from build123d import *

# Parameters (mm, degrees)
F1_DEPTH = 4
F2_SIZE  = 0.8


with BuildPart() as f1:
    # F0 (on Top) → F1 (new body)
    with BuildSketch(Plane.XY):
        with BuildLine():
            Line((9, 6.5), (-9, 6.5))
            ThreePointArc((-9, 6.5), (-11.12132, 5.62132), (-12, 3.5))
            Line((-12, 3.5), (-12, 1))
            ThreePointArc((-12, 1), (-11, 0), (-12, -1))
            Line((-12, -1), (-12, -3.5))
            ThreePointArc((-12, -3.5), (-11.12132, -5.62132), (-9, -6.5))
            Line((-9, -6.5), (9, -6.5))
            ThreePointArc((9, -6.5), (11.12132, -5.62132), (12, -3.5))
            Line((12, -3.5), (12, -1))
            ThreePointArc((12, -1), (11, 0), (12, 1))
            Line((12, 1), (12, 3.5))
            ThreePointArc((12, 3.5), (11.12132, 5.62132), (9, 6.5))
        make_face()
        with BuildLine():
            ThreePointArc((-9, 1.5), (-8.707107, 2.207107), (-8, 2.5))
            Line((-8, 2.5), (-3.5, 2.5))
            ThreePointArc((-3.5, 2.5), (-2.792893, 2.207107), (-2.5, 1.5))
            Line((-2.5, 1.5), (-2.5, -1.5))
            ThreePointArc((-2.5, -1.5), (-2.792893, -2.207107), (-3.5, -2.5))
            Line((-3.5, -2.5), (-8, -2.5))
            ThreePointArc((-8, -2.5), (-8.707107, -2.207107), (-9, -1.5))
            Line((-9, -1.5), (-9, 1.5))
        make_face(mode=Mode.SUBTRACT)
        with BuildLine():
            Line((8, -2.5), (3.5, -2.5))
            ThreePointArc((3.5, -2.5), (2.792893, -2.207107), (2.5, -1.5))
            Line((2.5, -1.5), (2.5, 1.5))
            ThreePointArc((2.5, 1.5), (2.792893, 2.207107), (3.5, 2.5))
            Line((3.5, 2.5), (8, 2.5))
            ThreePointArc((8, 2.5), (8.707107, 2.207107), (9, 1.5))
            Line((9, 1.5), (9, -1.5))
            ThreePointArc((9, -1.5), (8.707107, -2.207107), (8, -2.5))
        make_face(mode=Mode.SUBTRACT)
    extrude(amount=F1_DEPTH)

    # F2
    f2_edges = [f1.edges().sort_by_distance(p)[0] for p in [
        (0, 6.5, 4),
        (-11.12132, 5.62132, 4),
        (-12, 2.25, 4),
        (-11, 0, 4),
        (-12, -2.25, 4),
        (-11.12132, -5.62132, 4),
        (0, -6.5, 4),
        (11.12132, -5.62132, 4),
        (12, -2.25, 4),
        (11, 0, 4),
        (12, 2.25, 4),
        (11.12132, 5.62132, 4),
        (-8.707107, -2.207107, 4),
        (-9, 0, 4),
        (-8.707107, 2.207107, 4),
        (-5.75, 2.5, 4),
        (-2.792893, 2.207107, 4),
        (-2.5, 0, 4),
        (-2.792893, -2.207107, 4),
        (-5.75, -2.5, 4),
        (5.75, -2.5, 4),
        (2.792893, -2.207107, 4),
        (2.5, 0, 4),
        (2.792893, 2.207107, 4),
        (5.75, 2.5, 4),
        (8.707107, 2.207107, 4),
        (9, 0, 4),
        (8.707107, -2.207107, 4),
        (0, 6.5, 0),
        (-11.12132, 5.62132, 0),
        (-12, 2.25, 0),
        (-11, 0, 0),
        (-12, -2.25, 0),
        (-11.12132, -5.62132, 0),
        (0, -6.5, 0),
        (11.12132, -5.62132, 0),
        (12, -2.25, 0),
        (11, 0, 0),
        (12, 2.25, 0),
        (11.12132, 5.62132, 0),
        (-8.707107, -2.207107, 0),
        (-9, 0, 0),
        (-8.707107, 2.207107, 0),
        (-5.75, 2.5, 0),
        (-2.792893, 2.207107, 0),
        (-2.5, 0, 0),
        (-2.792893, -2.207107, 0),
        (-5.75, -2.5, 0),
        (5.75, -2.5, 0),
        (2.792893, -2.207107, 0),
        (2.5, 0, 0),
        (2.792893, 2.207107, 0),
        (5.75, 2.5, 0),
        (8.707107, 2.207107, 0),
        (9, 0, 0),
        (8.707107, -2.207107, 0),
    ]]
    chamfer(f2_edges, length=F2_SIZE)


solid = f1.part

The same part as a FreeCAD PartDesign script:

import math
import FreeCAD as App
import Part
import Sketcher
from FreeCAD import Vector
Q = App.Units.Quantity


def edges_at(feature, points):
    """Names of the edges that pass closest to the given points."""
    edges = feature.Shape.Edges
    near = lambda p: min(range(len(edges)), key=lambda i: edges[i].distToShape(Part.Vertex(*p))[0])
    return sorted({f"Edge{near(p) + 1}" for p in points})

doc = App.newDocument("Part")
body = doc.addObject("PartDesign::Body", "Body")

sketch1 = body.newObject("Sketcher::SketchObject", "Sketch")
sketch1.AttachmentSupport = (doc.getObject("XY_Plane"), [""])
sketch1.MapMode = "FlatFace"
sketch1.addGeometry(Part.LineSegment(Vector(9, 6.5, 0), Vector(-9, 6.5, 0)), False)
sketch1.addGeometry(Part.ArcOfCircle(Part.Circle(Vector(-9, 3.5, 0), Vector(0, 0, 1), 3), math.radians(90), math.radians(180)), False)
sketch1.addGeometry(Part.LineSegment(Vector(-12, 3.5, 0), Vector(-12, 1, 0)), False)
sketch1.addGeometry(Part.ArcOfCircle(Part.Circle(Vector(-12, 0, 0), Vector(0, 0, 1), 1), math.radians(-90), math.radians(90)), False)
sketch1.addGeometry(Part.LineSegment(Vector(-12, -1, 0), Vector(-12, -3.5, 0)), False)
sketch1.addGeometry(Part.ArcOfCircle(Part.Circle(Vector(-9, -3.5, 0), Vector(0, 0, 1), 3), math.radians(-180), math.radians(-90)), False)
sketch1.addGeometry(Part.LineSegment(Vector(-9, -6.5, 0), Vector(9, -6.5, 0)), False)
sketch1.addGeometry(Part.ArcOfCircle(Part.Circle(Vector(9, -3.5, 0), Vector(0, 0, 1), 3), math.radians(-90), math.radians(0)), False)
sketch1.addGeometry(Part.LineSegment(Vector(12, -3.5, 0), Vector(12, -1, 0)), False)
sketch1.addGeometry(Part.ArcOfCircle(Part.Circle(Vector(12, 0, 0), Vector(0, 0, 1), 1), math.radians(90), math.radians(270)), False)
sketch1.addGeometry(Part.LineSegment(Vector(12, 1, 0), Vector(12, 3.5, 0)), False)
sketch1.addGeometry(Part.ArcOfCircle(Part.Circle(Vector(9, 3.5, 0), Vector(0, 0, 1), 3), math.radians(0), math.radians(90)), False)
sketch1.addGeometry(Part.LineSegment(Vector(-9, -1.5, 0), Vector(-9, 1.5, 0)), False)
sketch1.addGeometry(Part.ArcOfCircle(Part.Circle(Vector(-8, 1.5, 0), Vector(0, 0, 1), 1), math.radians(90), math.radians(180)), False)
sketch1.addGeometry(Part.LineSegment(Vector(-8, 2.5, 0), Vector(-3.5, 2.5, 0)), False)
sketch1.addGeometry(Part.ArcOfCircle(Part.Circle(Vector(-3.5, 1.5, 0), Vector(0, 0, 1), 1), math.radians(0), math.radians(90)), False)
sketch1.addGeometry(Part.LineSegment(Vector(-2.5, 1.5, 0), Vector(-2.5, -1.5, 0)), False)
sketch1.addGeometry(Part.ArcOfCircle(Part.Circle(Vector(-3.5, -1.5, 0), Vector(0, 0, 1), 1), math.radians(-90), math.radians(0)), False)
sketch1.addGeometry(Part.LineSegment(Vector(-3.5, -2.5, 0), Vector(-8, -2.5, 0)), False)
sketch1.addGeometry(Part.ArcOfCircle(Part.Circle(Vector(-8, -1.5, 0), Vector(0, 0, 1), 1), math.radians(180), math.radians(270)), False)
sketch1.addGeometry(Part.ArcOfCircle(Part.Circle(Vector(8, -1.5, 0), Vector(0, 0, 1), 1), math.radians(-90), math.radians(0)), False)
sketch1.addGeometry(Part.LineSegment(Vector(8, -2.5, 0), Vector(3.5, -2.5, 0)), False)
sketch1.addGeometry(Part.ArcOfCircle(Part.Circle(Vector(3.5, -1.5, 0), Vector(0, 0, 1), 1), math.radians(180), math.radians(270)), False)
sketch1.addGeometry(Part.LineSegment(Vector(2.5, -1.5, 0), Vector(2.5, 1.5, 0)), False)
sketch1.addGeometry(Part.ArcOfCircle(Part.Circle(Vector(3.5, 1.5, 0), Vector(0, 0, 1), 1), math.radians(90), math.radians(180)), False)
sketch1.addGeometry(Part.LineSegment(Vector(3.5, 2.5, 0), Vector(8, 2.5, 0)), False)
sketch1.addGeometry(Part.ArcOfCircle(Part.Circle(Vector(8, 1.5, 0), Vector(0, 0, 1), 1), math.radians(0), math.radians(90)), False)
sketch1.addGeometry(Part.LineSegment(Vector(9, 1.5, 0), Vector(9, -1.5, 0)), False)
sketch1.addConstraint(Sketcher.Constraint("Tangent", 0, 2, 1, 1))
sketch1.addConstraint(Sketcher.Constraint("Tangent", 1, 2, 2, 1))
sketch1.addConstraint(Sketcher.Constraint("Coincident", 2, 2, 3, 2))
sketch1.addConstraint(Sketcher.Constraint("Coincident", 3, 1, 4, 1))
sketch1.addConstraint(Sketcher.Constraint("Tangent", 4, 2, 5, 1))
sketch1.addConstraint(Sketcher.Constraint("Tangent", 5, 2, 6, 1))
sketch1.addConstraint(Sketcher.Constraint("Tangent", 6, 2, 7, 1))
sketch1.addConstraint(Sketcher.Constraint("Tangent", 7, 2, 8, 1))
sketch1.addConstraint(Sketcher.Constraint("Coincident", 8, 2, 9, 2))
sketch1.addConstraint(Sketcher.Constraint("Coincident", 9, 1, 10, 1))
sketch1.addConstraint(Sketcher.Constraint("Tangent", 10, 2, 11, 1))
sketch1.addConstraint(Sketcher.Constraint("Tangent", 11, 2, 0, 1))
sketch1.addConstraint(Sketcher.Constraint("Tangent", 12, 2, 13, 2))
sketch1.addConstraint(Sketcher.Constraint("Tangent", 13, 1, 14, 1))
sketch1.addConstraint(Sketcher.Constraint("Tangent", 14, 2, 15, 2))
sketch1.addConstraint(Sketcher.Constraint("Tangent", 15, 1, 16, 1))
sketch1.addConstraint(Sketcher.Constraint("Tangent", 16, 2, 17, 2))
sketch1.addConstraint(Sketcher.Constraint("Tangent", 17, 1, 18, 1))
sketch1.addConstraint(Sketcher.Constraint("Tangent", 18, 2, 19, 2))
sketch1.addConstraint(Sketcher.Constraint("Tangent", 19, 1, 12, 1))
sketch1.addConstraint(Sketcher.Constraint("Tangent", 20, 1, 21, 1))
sketch1.addConstraint(Sketcher.Constraint("Tangent", 21, 2, 22, 2))
sketch1.addConstraint(Sketcher.Constraint("Tangent", 22, 1, 23, 1))
sketch1.addConstraint(Sketcher.Constraint("Tangent", 23, 2, 24, 2))
sketch1.addConstraint(Sketcher.Constraint("Tangent", 24, 1, 25, 1))
sketch1.addConstraint(Sketcher.Constraint("Tangent", 25, 2, 26, 2))
sketch1.addConstraint(Sketcher.Constraint("Tangent", 26, 1, 27, 1))
sketch1.addConstraint(Sketcher.Constraint("Tangent", 27, 2, 20, 2))
sketch1.addConstraint(Sketcher.Constraint("Horizontal", 0))
sketch1.addConstraint(Sketcher.Constraint("Vertical", 2))
sketch1.addConstraint(Sketcher.Constraint("Vertical", 4))
sketch1.addConstraint(Sketcher.Constraint("Horizontal", 6))
sketch1.addConstraint(Sketcher.Constraint("Vertical", 8))
sketch1.addConstraint(Sketcher.Constraint("Vertical", 10))
sketch1.addConstraint(Sketcher.Constraint("Vertical", 12))
sketch1.addConstraint(Sketcher.Constraint("Horizontal", 14))
sketch1.addConstraint(Sketcher.Constraint("Vertical", 16))
sketch1.addConstraint(Sketcher.Constraint("Horizontal", 18))
sketch1.addConstraint(Sketcher.Constraint("Horizontal", 21))
sketch1.addConstraint(Sketcher.Constraint("Vertical", 23))
sketch1.addConstraint(Sketcher.Constraint("Horizontal", 25))
sketch1.addConstraint(Sketcher.Constraint("Vertical", 27))
sketch1.addConstraint(Sketcher.Constraint("Equal", 1, 5))
sketch1.addConstraint(Sketcher.Constraint("Equal", 5, 7))
sketch1.addConstraint(Sketcher.Constraint("Equal", 3, 9))
sketch1.addConstraint(Sketcher.Constraint("Equal", 7, 11))
sketch1.addConstraint(Sketcher.Constraint("Equal", 9, 13))
sketch1.addConstraint(Sketcher.Constraint("Equal", 13, 15))
sketch1.addConstraint(Sketcher.Constraint("Equal", 15, 17))
sketch1.addConstraint(Sketcher.Constraint("Equal", 17, 19))
sketch1.addConstraint(Sketcher.Constraint("Equal", 19, 20))
sketch1.addConstraint(Sketcher.Constraint("Equal", 20, 22))
sketch1.addConstraint(Sketcher.Constraint("Equal", 22, 24))
sketch1.addConstraint(Sketcher.Constraint("Equal", 24, 26))
sketch1.addConstraint(Sketcher.Constraint("Symmetric", 1, 3, 7, 3, -1, 1))
sketch1.addConstraint(Sketcher.Constraint("Symmetric", 3, 3, 9, 3, -1, 1))
sketch1.addConstraint(Sketcher.Constraint("Symmetric", 13, 3, 20, 3, -1, 1))
sketch1.addConstraint(Sketcher.Constraint("Symmetric", 17, 3, 24, 3, -1, 1))
sketch1.addConstraint(Sketcher.Constraint("Symmetric", 3, 1, 8, 2, -2))
sketch1.addConstraint(Sketcher.Constraint("Horizontal", 19, 3, 20, 3))
sketch1.addConstraint(Sketcher.Constraint("Vertical", 7, 3, 11, 3))
sketch1.addConstraint(Sketcher.Constraint("Vertical", 3, 3, 1, 2))
sketch1.addConstraint(Sketcher.Constraint("Vertical", 5, 2, 12, 2))
sketch1.addConstraint(Sketcher.Constraint("Radius", 1, Q("3.000001 mm")))
sketch1.addConstraint(Sketcher.Constraint("Radius", 3, Q("1 mm")))
sketch1.addConstraint(Sketcher.Constraint("DistanceX", 0, 2, 0, 1, Q("18 mm")))
sketch1.addConstraint(Sketcher.Constraint("DistanceY", 12, 1, 12, 2, Q("3 mm")))
sketch1.addConstraint(Sketcher.Constraint("DistanceX", 14, 1, 14, 2, Q("4.5 mm")))
sketch1.addConstraint(Sketcher.Constraint("DistanceY", 2, 2, 2, 1, Q("2.5 mm")))
pad1 = body.newObject("PartDesign::Pad", "Pad")
pad1.Profile = sketch1
pad1.Length = 4
doc.recompute()

chamfer = body.newObject("PartDesign::Chamfer", "Chamfer")
chamfer.Base = (pad1, edges_at(pad1, [
    (0, 6.5, 4),
    (-11.121, 5.621, 4),
    (-12, 2.25, 4),
    (-11, 0, 4),
    (-12, -2.25, 4),
    (-11.121, -5.621, 4),
    (0, -6.5, 4),
    (11.121, -5.621, 4),
    (12, -2.25, 4),
    (11, 0, 4),
    (12, 2.25, 4),
    (11.121, 5.621, 4),
    (-8.707, -2.207, 4),
    (-9, 0, 4),
    (-8.707, 2.207, 4),
    (-5.75, 2.5, 4),
    (-2.793, 2.207, 4),
    (-2.5, 0, 4),
    (-2.793, -2.207, 4),
    (-5.75, -2.5, 4),
    (5.75, -2.5, 4),
    (2.793, -2.207, 4),
    (2.5, 0, 4),
    (2.793, 2.207, 4),
    (5.75, 2.5, 4),
    (8.707, 2.207, 4),
    (9, 0, 4),
    (8.707, -2.207, 4),
    (0, 6.5, 0),
    (-11.121, 5.621, 0),
    (-12, 2.25, 0),
    (-11, 0, 0),
    (-12, -2.25, 0),
    (-11.121, -5.621, 0),
    (0, -6.5, 0),
    (11.121, -5.621, 0),
    (12, -2.25, 0),
    (11, 0, 0),
    (12, 2.25, 0),
    (11.121, 5.621, 0),
    (-8.707, -2.207, 0),
    (-9, 0, 0),
    (-8.707, 2.207, 0),
    (-5.75, 2.5, 0),
    (-2.793, 2.207, 0),
    (-2.5, 0, 0),
    (-2.793, -2.207, 0),
    (-5.75, -2.5, 0),
    (5.75, -2.5, 0),
    (2.793, -2.207, 0),
    (2.5, 0, 0),
    (2.793, 2.207, 0),
    (5.75, 2.5, 0),
    (8.707, 2.207, 0),
    (9, 0, 0),
    (8.707, -2.207, 0),
]))
chamfer.Size = 0.8

doc.recompute()
